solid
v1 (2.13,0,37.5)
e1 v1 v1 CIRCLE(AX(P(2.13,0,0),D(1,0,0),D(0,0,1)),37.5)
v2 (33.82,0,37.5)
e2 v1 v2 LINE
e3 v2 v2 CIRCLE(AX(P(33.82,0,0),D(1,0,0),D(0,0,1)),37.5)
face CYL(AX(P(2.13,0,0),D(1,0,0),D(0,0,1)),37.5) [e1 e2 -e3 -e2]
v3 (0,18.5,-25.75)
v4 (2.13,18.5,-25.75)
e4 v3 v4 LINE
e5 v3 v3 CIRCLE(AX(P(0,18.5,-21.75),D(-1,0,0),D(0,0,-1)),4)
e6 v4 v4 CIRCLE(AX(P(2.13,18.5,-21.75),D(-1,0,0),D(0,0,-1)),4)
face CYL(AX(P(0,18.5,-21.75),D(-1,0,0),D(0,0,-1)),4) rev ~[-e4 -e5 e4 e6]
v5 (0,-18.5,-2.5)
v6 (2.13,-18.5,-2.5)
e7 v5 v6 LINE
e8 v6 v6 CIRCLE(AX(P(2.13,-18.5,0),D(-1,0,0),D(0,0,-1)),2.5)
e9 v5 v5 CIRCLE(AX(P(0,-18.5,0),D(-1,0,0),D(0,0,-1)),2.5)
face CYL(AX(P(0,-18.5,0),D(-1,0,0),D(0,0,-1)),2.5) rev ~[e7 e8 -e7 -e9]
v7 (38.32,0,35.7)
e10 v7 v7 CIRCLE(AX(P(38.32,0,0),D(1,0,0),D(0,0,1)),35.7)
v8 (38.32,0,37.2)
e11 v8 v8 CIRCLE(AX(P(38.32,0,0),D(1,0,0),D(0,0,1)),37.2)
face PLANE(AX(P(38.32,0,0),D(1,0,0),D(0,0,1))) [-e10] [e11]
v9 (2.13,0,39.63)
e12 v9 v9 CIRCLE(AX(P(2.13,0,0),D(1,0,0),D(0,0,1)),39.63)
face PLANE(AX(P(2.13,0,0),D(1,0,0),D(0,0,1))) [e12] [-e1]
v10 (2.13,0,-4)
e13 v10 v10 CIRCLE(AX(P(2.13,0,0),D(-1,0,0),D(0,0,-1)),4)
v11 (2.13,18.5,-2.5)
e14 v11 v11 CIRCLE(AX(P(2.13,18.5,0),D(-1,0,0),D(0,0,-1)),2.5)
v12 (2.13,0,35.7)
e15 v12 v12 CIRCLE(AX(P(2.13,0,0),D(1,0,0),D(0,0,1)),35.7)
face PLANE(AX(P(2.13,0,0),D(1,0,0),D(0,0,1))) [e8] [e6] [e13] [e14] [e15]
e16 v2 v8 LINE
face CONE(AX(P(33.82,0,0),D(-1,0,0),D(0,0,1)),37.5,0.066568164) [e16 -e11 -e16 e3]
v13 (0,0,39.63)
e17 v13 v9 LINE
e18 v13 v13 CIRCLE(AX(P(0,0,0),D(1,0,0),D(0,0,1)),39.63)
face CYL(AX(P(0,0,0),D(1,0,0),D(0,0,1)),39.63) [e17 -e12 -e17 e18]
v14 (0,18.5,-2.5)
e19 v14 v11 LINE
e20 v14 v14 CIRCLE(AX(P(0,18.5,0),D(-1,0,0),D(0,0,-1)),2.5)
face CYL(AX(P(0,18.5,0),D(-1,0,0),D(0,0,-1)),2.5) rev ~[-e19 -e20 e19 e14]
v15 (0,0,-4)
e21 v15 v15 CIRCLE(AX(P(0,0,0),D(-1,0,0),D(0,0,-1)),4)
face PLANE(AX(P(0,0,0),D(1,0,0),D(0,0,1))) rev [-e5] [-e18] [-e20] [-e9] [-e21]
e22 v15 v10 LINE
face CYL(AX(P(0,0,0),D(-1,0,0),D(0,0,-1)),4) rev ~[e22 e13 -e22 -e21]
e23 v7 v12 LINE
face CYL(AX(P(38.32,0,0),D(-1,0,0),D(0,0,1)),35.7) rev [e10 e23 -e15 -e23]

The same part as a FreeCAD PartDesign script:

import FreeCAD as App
import Part
import Sketcher
from FreeCAD import Vector
Q = App.Units.Quantity

doc = App.newDocument("Part")
body = doc.addObject("PartDesign::Body", "Body")

sketch1 = doc.addObject("Sketcher::SketchObject", "Sketch")
body.addObject(sketch1)
sketch1.AttachmentSupport = (doc.XZ_Plane, [""])
sketch1.MapMode = "FlatFace"
sketch1.addGeometry(Part.LineSegment(Vector(0, 39.6, 0), Vector(0, 0, 0)), False)
sketch1.addGeometry(Part.LineSegment(Vector(0, 0, 0), Vector(2.1, 0, 0)), False)
sketch1.addGeometry(Part.LineSegment(Vector(2.1, 0, 0), Vector(2.1, 35.7, 0)), False)
sketch1.addGeometry(Part.LineSegment(Vector(2.1, 35.7, 0), Vector(38.3, 35.7, 0)), False)
sketch1.addGeometry(Part.LineSegment(Vector(38.3, 35.7, 0), Vector(38.3, 37.2, 0)), False)
sketch1.addGeometry(Part.LineSegment(Vector(38.3, 37.2, 0), Vector(33.8, 37.5, 0)), False)
sketch1.addGeometry(Part.LineSegment(Vector(33.8, 37.5, 0), Vector(2.1, 37.5, 0)), False)
sketch1.addGeometry(Part.LineSegment(Vector(2.1, 37.5, 0), Vector(2.1, 39.6, 0)), False)
sketch1.addGeometry(Part.LineSegment(Vector(2.1, 39.6, 0), Vector(0, 39.6, 0)), False)
sketch1.addConstraint(Sketcher.Constraint("Coincident", 0, 2, 1, 1))
sketch1.addConstraint(Sketcher.Constraint("Coincident", 1, 2, 2, 1))
sketch1.addConstraint(Sketcher.Constraint("Coincident", 2, 2, 3, 1))
sketch1.addConstraint(Sketcher.Constraint("Coincident", 3, 2, 4, 1))
sketch1.addConstraint(Sketcher.Constraint("Coincident", 4, 2, 5, 1))
sketch1.addConstraint(Sketcher.Constraint("Coincident", 5, 2, 6, 1))
sketch1.addConstraint(Sketcher.Constraint("Coincident", 6, 2, 7, 1))
sketch1.addConstraint(Sketcher.Constraint("Coincident", 7, 2, 8, 1))
sketch1.addConstraint(Sketcher.Constraint("Coincident", 8, 2, 0, 1))
sketch1.addConstraint(Sketcher.Constraint("Vertical", 0))
sketch1.addConstraint(Sketcher.Constraint("Horizontal", 1))
sketch1.addConstraint(Sketcher.Constraint("Vertical", 2))
sketch1.addConstraint(Sketcher.Constraint("Horizontal", 3))
sketch1.addConstraint(Sketcher.Constraint("Vertical", 4))
sketch1.addConstraint(Sketcher.Constraint("Horizontal", 6))
sketch1.addConstraint(Sketcher.Constraint("Vertical", 7))
sketch1.addConstraint(Sketcher.Constraint("Horizontal", 8))
sketch1.addConstraint(Sketcher.Constraint("Coincident", 0, 2, -1, 1))
sketch1.addConstraint(Sketcher.Constraint("Vertical", 2, 2, 6, 2))
sketch1.addConstraint(Sketcher.Constraint("Equal", 8, 7))
sketch1.addConstraint(Sketcher.Constraint("DistanceY", 2, 1, 2, 2, Q("35.7 mm")))
sketch1.addConstraint(Sketcher.Constraint("DistanceY", 4, 1, 4, 2, Q("1.5 mm")))
sketch1.addConstraint(Sketcher.Constraint("DistanceX", 1, 1, 1, 2, Q("2.13 mm")))
sketch1.addConstraint(Sketcher.Constraint("DistanceX", 3, 1, 3, 2, Q("36.19 mm")))
sketch1.addConstraint(Sketcher.Constraint("DistanceX", 6, 2, 6, 1, Q("31.69 mm")))
sketch1.addConstraint(Sketcher.Constraint("DistanceY", 0, 2, 0, 1, Q("39.63 mm")))
revolution = doc.addObject("PartDesign::Revolution", "Revolution")
body.addObject(revolution)
revolution.Profile = sketch1
revolution.ReferenceAxis = (sketch1, ["H_Axis"])
revolution.Angle = 360

sketch2 = doc.addObject("Sketcher::SketchObject", "Sketch001")
body.addObject(sketch2)
sketch2.AttachmentSupport = (doc.YZ_Plane, [""])
sketch2.MapMode = "FlatFace"
sketch2.addGeometry(Part.Circle(Vector(0, 0, 0), Vector(0, 0, 1), 4), False)
sketch2.addGeometry(Part.Circle(Vector(-18.5, 0, 0), Vector(0, 0, 1), 2.5), False)
sketch2.addGeometry(Part.Circle(Vector(18.5, 0, 0), Vector(0, 0, 1), 2.5), False)
sketch2.addGeometry(Part.Circle(Vector(18.5, -21.8, 0), Vector(0, 0, 1), 4), False)
sketch2.addConstraint(Sketcher.Constraint("Coincident", 0, 3, -1, 1))
sketch2.addConstraint(Sketcher.Constraint("Equal", 1, 2))
sketch2.addConstraint(Sketcher.Constraint("Equal", 0, 3))
sketch2.addConstraint(Sketcher.Constraint("Symmetric", 1, 3, 2, 3, -1, 1))
sketch2.addConstraint(Sketcher.Constraint("PointOnObject", 1, 3, -1))
sketch2.addConstraint(Sketcher.Constraint("Vertical", 2, 3, 3, 3))
sketch2.addConstraint(Sketcher.Constraint("Diameter", 0, Q("8 mm")))
sketch2.addConstraint(Sketcher.Constraint("Diameter", 1, Q("5 mm")))
sketch2.addConstraint(Sketcher.Constraint("DistanceX", 1, 3, 2, 3, Q("37 mm")))
sketch2.addConstraint(Sketcher.Constraint("DistanceY", 3, 3, -1, 1, Q("21.75 mm")))
pocket1 = doc.addObject("PartDesign::Pocket", "Pocket")
body.addObject(pocket1)
pocket1.Profile = sketch2
pocket1.Type = "ThroughAll"
pocket1.Reversed = True

doc.recompute()
